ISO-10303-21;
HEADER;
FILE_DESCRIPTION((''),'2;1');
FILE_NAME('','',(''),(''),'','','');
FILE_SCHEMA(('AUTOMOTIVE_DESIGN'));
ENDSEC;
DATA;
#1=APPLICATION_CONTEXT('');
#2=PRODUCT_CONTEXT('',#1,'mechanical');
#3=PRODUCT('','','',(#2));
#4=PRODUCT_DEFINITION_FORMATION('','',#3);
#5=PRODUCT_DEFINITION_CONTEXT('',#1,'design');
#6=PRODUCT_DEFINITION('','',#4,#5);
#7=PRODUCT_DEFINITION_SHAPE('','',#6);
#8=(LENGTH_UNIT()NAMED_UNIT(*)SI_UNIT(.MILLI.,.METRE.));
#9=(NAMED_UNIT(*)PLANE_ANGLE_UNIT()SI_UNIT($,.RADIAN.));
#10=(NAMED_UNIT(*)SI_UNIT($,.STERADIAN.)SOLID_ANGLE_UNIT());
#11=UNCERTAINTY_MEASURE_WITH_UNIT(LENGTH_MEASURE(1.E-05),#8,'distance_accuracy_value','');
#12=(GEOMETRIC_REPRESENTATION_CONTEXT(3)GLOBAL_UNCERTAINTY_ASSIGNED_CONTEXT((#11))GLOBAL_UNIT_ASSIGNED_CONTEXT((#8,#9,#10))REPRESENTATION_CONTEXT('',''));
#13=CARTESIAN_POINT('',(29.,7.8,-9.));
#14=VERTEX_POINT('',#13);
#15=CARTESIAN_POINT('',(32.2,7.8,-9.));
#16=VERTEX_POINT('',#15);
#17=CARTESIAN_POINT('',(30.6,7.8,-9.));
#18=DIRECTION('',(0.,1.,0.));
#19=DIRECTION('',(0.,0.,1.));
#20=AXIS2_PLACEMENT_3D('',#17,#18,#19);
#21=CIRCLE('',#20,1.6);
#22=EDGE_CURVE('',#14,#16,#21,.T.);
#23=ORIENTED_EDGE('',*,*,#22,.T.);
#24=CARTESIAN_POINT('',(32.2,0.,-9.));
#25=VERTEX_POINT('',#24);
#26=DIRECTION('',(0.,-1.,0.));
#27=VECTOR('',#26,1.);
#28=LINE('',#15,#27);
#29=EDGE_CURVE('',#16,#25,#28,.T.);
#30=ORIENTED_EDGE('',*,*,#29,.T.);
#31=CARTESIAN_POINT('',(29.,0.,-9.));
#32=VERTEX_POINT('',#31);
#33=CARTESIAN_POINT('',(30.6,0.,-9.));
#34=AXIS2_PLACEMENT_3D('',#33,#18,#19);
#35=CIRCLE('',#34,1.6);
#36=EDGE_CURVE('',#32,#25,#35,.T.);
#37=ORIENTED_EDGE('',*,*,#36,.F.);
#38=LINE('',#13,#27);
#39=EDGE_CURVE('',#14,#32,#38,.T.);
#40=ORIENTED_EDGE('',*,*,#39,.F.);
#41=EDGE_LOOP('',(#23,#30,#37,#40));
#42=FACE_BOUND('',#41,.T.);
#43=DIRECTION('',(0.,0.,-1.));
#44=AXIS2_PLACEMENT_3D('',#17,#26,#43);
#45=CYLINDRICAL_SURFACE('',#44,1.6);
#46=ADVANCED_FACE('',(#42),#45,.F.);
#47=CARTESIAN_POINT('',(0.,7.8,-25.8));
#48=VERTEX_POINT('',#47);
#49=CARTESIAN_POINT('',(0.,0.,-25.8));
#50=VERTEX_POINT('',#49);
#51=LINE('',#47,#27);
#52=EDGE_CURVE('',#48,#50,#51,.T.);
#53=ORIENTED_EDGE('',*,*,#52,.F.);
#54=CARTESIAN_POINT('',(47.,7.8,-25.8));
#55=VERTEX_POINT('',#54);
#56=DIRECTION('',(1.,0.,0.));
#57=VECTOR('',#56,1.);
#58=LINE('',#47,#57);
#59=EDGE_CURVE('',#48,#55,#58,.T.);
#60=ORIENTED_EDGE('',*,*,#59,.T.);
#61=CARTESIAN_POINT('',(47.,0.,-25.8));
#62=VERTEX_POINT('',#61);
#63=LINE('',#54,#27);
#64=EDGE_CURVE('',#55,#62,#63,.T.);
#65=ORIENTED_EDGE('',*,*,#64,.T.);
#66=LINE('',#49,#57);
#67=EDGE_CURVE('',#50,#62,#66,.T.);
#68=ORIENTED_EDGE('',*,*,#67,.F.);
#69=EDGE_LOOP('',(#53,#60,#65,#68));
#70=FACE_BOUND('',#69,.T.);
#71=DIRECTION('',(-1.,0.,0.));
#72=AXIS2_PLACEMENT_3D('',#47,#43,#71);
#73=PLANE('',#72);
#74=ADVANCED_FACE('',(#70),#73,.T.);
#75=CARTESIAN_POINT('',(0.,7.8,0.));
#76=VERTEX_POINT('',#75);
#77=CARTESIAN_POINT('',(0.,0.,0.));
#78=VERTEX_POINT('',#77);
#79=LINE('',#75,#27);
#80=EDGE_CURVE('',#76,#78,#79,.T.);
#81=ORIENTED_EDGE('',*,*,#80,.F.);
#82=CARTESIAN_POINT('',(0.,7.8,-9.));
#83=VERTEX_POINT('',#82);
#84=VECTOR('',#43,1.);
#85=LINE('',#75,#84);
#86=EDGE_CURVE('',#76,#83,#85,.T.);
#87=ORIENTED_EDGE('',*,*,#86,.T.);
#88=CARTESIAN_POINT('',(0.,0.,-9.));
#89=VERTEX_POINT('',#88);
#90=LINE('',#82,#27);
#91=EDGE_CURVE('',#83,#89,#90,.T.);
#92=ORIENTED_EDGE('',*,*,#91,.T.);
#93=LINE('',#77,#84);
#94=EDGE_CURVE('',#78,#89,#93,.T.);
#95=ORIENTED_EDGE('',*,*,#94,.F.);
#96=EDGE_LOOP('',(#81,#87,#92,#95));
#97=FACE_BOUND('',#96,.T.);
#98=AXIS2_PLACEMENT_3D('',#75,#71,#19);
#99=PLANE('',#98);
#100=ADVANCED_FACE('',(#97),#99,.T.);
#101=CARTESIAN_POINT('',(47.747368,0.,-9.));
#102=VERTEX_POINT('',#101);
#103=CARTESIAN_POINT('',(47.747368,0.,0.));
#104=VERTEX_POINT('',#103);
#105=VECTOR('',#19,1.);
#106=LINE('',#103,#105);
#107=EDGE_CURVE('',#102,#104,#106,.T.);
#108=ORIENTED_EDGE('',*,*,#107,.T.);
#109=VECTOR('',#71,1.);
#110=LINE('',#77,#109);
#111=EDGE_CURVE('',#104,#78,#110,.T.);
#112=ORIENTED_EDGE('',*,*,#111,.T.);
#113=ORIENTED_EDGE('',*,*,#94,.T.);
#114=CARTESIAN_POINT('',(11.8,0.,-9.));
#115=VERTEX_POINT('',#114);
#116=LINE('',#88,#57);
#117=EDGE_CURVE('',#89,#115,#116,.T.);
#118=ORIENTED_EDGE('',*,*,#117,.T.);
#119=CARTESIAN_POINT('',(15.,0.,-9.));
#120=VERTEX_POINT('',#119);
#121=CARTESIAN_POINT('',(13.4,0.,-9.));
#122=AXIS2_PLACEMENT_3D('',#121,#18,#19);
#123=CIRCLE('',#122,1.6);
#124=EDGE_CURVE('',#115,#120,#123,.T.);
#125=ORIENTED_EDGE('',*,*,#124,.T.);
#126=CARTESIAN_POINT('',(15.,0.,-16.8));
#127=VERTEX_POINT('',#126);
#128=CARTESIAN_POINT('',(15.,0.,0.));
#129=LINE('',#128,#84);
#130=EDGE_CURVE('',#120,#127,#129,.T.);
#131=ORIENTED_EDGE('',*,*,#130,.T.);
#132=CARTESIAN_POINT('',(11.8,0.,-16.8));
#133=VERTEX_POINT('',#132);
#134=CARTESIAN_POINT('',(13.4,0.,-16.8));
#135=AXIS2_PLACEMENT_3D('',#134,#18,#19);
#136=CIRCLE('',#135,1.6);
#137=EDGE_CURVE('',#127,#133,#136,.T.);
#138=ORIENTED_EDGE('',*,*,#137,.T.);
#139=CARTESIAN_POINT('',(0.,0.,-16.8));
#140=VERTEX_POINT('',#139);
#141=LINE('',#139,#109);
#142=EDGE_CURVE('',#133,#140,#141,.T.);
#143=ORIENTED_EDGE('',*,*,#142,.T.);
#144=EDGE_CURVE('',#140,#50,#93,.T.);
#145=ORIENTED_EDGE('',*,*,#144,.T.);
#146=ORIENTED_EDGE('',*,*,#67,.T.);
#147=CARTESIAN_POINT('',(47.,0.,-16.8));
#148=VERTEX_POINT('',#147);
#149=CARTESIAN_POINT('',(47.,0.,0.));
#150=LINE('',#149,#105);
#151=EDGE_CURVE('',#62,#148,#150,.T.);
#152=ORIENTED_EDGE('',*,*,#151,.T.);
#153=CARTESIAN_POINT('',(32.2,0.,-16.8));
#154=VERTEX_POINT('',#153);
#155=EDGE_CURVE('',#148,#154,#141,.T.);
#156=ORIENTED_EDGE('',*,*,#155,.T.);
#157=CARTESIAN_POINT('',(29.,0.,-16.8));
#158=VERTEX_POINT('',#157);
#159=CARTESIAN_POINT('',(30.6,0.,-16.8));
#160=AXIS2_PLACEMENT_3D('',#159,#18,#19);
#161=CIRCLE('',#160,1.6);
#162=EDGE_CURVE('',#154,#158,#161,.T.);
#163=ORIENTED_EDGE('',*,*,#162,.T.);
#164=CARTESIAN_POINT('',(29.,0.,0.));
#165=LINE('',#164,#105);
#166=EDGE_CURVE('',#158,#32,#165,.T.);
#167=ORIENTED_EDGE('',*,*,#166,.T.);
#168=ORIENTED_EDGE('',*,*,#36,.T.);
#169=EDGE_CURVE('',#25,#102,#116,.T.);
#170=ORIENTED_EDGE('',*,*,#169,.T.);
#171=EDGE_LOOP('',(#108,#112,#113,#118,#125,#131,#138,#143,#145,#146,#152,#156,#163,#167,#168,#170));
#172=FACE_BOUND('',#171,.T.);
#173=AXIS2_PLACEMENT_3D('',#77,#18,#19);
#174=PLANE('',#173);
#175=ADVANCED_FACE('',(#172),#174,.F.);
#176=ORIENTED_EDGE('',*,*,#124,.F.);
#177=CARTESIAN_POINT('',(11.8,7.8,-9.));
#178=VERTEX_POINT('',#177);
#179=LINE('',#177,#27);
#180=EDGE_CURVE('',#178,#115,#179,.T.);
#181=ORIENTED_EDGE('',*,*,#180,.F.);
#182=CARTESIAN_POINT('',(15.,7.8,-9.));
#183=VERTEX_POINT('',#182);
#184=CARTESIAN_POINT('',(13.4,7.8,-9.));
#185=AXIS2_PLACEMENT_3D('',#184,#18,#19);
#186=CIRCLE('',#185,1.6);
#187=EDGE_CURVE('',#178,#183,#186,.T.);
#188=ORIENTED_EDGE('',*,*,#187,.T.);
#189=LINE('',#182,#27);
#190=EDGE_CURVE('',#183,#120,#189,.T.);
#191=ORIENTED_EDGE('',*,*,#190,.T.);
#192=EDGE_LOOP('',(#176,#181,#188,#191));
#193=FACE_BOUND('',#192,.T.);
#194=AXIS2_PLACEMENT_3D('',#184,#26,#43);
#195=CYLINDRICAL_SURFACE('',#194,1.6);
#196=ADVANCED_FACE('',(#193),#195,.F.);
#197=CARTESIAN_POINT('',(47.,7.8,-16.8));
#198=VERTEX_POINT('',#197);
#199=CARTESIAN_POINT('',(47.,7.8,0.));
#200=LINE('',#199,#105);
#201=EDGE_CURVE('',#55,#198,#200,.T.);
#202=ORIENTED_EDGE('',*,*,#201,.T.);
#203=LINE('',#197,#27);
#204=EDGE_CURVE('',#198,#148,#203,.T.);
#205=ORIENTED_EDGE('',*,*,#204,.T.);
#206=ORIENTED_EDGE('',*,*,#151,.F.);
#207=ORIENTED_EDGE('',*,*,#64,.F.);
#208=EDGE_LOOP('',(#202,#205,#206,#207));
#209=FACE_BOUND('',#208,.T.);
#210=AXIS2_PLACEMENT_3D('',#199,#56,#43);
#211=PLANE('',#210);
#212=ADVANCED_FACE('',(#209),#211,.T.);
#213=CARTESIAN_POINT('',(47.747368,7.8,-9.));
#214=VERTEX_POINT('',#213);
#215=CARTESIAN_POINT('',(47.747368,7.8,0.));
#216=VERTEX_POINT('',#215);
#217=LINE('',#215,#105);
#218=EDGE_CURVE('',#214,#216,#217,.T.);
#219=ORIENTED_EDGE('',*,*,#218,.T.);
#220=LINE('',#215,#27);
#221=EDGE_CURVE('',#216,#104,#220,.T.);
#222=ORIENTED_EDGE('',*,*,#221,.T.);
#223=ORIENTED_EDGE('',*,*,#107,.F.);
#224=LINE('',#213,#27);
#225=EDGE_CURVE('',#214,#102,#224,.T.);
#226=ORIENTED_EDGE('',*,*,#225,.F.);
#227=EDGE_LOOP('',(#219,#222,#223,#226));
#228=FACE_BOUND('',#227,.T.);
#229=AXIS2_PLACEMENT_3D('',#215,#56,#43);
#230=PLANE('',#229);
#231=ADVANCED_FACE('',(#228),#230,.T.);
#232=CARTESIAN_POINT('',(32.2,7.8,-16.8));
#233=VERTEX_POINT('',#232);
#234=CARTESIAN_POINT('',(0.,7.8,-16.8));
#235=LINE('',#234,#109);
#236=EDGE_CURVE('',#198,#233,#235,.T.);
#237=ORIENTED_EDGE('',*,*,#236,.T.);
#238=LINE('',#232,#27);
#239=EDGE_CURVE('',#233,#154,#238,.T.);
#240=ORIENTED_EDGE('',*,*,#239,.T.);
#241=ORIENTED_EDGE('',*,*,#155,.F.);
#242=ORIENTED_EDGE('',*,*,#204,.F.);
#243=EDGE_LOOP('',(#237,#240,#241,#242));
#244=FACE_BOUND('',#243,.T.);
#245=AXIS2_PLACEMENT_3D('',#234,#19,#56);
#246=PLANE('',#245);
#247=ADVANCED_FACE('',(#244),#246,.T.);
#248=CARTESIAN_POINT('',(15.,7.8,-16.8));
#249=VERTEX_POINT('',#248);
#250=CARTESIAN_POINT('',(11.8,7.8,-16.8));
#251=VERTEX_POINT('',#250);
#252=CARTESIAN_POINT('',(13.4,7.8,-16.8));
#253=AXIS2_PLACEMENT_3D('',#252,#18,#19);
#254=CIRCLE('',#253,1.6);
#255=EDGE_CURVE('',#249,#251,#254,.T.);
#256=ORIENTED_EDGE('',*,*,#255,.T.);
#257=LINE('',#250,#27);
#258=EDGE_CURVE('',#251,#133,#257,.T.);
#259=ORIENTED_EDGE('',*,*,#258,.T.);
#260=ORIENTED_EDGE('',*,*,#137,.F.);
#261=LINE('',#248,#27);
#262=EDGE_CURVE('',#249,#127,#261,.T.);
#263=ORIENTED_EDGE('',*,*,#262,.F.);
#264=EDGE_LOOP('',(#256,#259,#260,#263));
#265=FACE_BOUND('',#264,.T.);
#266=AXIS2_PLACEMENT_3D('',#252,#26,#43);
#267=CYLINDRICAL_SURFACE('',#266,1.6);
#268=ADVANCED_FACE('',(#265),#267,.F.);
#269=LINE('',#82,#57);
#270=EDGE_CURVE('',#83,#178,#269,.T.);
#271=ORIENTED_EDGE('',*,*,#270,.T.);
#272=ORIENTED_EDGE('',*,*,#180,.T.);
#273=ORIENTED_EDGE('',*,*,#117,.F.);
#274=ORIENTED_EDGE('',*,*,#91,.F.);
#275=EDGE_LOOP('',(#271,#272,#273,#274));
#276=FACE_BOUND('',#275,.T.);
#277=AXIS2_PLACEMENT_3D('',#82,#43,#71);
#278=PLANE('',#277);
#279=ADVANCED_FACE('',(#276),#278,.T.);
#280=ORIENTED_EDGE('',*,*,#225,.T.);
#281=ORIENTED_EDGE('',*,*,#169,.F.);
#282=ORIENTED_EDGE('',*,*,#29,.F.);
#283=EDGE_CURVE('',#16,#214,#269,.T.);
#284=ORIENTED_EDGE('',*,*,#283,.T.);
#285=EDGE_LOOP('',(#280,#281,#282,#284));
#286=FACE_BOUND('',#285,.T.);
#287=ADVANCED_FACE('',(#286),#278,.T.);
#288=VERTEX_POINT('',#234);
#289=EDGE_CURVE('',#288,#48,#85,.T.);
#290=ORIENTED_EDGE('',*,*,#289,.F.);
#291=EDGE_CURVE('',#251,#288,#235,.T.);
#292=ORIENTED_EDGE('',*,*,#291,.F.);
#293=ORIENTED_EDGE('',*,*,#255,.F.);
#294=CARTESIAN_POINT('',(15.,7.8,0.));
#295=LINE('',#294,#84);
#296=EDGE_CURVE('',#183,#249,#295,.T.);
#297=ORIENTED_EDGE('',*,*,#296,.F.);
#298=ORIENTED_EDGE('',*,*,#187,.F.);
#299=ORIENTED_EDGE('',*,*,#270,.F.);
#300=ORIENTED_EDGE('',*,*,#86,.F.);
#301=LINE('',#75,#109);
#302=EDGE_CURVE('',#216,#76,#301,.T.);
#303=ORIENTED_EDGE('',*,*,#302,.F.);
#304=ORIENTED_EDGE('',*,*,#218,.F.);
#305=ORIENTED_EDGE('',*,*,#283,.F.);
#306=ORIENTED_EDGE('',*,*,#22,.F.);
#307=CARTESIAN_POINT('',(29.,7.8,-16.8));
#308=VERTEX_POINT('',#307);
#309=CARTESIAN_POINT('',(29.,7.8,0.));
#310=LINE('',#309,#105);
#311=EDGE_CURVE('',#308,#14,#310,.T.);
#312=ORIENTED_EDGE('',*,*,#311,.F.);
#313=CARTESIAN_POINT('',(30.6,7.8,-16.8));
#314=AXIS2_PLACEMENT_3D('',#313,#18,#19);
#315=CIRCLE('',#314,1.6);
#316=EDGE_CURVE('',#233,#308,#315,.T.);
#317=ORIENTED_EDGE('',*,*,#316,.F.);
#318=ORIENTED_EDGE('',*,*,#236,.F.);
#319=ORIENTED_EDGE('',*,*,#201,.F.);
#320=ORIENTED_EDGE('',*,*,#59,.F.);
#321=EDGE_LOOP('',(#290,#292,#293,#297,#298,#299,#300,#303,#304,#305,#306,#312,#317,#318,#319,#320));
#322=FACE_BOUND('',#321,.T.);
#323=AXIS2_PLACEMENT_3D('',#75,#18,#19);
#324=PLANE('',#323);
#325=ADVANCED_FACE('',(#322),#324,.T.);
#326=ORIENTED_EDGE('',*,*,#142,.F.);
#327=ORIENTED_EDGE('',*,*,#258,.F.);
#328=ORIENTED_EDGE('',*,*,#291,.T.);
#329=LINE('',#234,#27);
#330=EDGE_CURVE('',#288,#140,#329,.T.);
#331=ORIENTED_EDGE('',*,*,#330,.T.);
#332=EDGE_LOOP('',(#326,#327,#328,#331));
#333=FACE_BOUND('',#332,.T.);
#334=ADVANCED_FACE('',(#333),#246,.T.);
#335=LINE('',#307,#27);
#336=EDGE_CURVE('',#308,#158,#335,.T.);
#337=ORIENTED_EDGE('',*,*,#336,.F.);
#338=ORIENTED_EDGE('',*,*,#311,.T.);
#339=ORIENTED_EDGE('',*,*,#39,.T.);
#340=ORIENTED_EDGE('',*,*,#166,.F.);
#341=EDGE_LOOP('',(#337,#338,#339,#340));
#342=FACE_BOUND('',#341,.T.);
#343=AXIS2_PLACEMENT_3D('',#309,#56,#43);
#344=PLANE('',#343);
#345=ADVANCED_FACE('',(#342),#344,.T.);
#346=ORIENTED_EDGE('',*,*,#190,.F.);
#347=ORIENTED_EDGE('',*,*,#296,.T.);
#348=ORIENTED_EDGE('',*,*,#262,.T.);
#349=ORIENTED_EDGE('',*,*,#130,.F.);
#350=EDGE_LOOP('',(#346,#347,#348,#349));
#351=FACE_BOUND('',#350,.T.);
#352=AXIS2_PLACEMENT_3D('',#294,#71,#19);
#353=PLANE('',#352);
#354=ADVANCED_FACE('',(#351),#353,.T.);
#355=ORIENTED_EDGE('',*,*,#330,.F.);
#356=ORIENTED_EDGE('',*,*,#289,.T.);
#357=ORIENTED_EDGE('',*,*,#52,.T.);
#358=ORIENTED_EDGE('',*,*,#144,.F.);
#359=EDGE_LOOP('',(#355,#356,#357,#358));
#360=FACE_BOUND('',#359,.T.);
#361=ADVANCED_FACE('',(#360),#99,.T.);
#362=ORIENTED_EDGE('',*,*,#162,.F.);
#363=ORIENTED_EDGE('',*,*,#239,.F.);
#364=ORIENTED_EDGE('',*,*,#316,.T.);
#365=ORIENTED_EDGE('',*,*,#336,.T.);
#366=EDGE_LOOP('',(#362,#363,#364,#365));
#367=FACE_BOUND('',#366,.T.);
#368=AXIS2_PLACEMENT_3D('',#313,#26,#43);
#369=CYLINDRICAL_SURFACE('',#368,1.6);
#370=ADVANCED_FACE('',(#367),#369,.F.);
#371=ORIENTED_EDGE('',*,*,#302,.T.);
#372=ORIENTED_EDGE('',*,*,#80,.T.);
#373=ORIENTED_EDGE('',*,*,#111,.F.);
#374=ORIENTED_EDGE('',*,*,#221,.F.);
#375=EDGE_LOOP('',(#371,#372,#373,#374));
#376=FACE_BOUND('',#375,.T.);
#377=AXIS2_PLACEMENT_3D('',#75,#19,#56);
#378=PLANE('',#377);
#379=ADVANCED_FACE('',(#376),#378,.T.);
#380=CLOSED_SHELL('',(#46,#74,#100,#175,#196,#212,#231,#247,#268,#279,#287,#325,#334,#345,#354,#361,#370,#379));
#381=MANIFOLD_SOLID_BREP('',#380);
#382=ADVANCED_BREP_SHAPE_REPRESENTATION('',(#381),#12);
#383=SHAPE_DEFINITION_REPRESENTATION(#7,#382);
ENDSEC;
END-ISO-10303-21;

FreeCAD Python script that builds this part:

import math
import FreeCAD as App
import Part
import Sketcher
Q = App.Units.Quantity

doc = App.newDocument("Part")
body = doc.addObject("PartDesign::Body", "Body")

sketch1 = body.newObject("Sketcher::SketchObject", "Sketch")
sketch1.AttachmentSupport = (doc.getObject("XZ_Plane"), [""])
sketch1.MapMode = "FlatFace"
sketch1.addGeometry([
    Part.LineSegment(App.Vector(0, -9, 0), App.Vector(0, 0, 0)),
    Part.LineSegment(App.Vector(0, 0, 0), App.Vector(47.7, 0, 0)),
    Part.LineSegment(App.Vector(47.7, 0, 0), App.Vector(47.7, -9, 0)),
    Part.LineSegment(App.Vector(47.7, -9, 0), App.Vector(32.2, -9, 0)),
    Part.ArcOfCircle(Part.Circle(App.Vector(30.6, -9, 0), App.Vector(0, 0, 1), 1.6), math.radians(0), math.radians(180)),
    Part.LineSegment(App.Vector(29, -9, 0), App.Vector(29, -16.8, 0)),
    Part.ArcOfCircle(Part.Circle(App.Vector(30.6, -16.8, 0), App.Vector(0, 0, 1), 1.6), math.radians(180), math.radians(360)),
    Part.LineSegment(App.Vector(32.2, -16.8, 0), App.Vector(47, -16.8, 0)),
    Part.LineSegment(App.Vector(47, -16.8, 0), App.Vector(47, -25.8, 0)),
    Part.LineSegment(App.Vector(47, -25.8, 0), App.Vector(0, -25.8, 0)),
    Part.LineSegment(App.Vector(0, -25.8, 0), App.Vector(0, -16.8, 0)),
    Part.LineSegment(App.Vector(0, -16.8, 0), App.Vector(11.8, -16.8, 0)),
    Part.ArcOfCircle(Part.Circle(App.Vector(13.4, -16.8, 0), App.Vector(0, 0, 1), 1.6), math.radians(180), math.radians(360)),
    Part.LineSegment(App.Vector(15, -16.8, 0), App.Vector(15, -9, 0)),
    Part.ArcOfCircle(Part.Circle(App.Vector(13.4, -9, 0), App.Vector(0, 0, 1), 1.6), math.radians(0), math.radians(180)),
    Part.LineSegment(App.Vector(11.8, -9, 0), App.Vector(0, -9, 0)),
], False)
sketch1.addConstraint([
    Sketcher.Constraint("Coincident", 0, 2, 1, 1),
    Sketcher.Constraint("Coincident", 1, 2, 2, 1),
    Sketcher.Constraint("Coincident", 2, 2, 3, 1),
    Sketcher.Constraint("Coincident", 3, 2, 4, 1),
    Sketcher.Constraint("Tangent", 4, 2, 5, 1),
    Sketcher.Constraint("Tangent", 5, 2, 6, 1),
    Sketcher.Constraint("Coincident", 6, 2, 7, 1),
    Sketcher.Constraint("Coincident", 7, 2, 8, 1),
    Sketcher.Constraint("Coincident", 8, 2, 9, 1),
    Sketcher.Constraint("Coincident", 9, 2, 10, 1),
    Sketcher.Constraint("Coincident", 10, 2, 11, 1),
    Sketcher.Constraint("Coincident", 11, 2, 12, 1),
    Sketcher.Constraint("Tangent", 12, 2, 13, 1),
    Sketcher.Constraint("Tangent", 13, 2, 14, 1),
    Sketcher.Constraint("Coincident", 14, 2, 15, 1),
    Sketcher.Constraint("Coincident", 15, 2, 0, 1),
    Sketcher.Constraint("Vertical", 0),
    Sketcher.Constraint("Horizontal", 1),
    Sketcher.Constraint("Vertical", 2),
    Sketcher.Constraint("Horizontal", 3),
    Sketcher.Constraint("Vertical", 5),
    Sketcher.Constraint("Horizontal", 7),
    Sketcher.Constraint("Vertical", 8),
    Sketcher.Constraint("Horizontal", 9),
    Sketcher.Constraint("Vertical", 10),
    Sketcher.Constraint("Horizontal", 11),
    Sketcher.Constraint("Vertical", 13),
    Sketcher.Constraint("Horizontal", 15),
    Sketcher.Constraint("Coincident", 0, 2, -1, 1),
    Sketcher.Constraint("Equal", 4, 6),
    Sketcher.Constraint("Equal", 6, 12),
    Sketcher.Constraint("Equal", 12, 14),
    Sketcher.Constraint("PointOnObject", 9, 2, -2),
    Sketcher.Constraint("Horizontal", 6, 3, 12, 3),
    Sketcher.Constraint("Horizontal", 4, 3, 14, 3),
    Sketcher.Constraint("Horizontal", 14, 3, 2, 2),
    Sketcher.Constraint("Horizontal", 5, 2, 6, 2),
    Sketcher.Constraint("Horizontal", 7, 2, 10, 2),
    Sketcher.Constraint("Horizontal", 13, 2, 14, 2),
    Sketcher.Constraint("Equal", 2, 8),
    Sketcher.Constraint("Radius", 4, Q("1.6 mm")),
    Sketcher.Constraint("DistanceX", 9, 2, 9, 1, Q("47 mm")),
    Sketcher.Constraint("DistanceY", 0, 1, 0, 2, Q("9 mm")),
    Sketcher.Constraint("DistanceX", 7, 1, 7, 2, Q("14.8 mm")),
    Sketcher.Constraint("DistanceX", 11, 1, 11, 2, Q("11.8 mm")),
    Sketcher.Constraint("DistanceY", 5, 2, 5, 1, Q("7.8 mm")),
    Sketcher.Constraint("DistanceX", 1, 1, 1, 2, Q("47.747368 mm")),
])
pad1 = body.newObject("PartDesign::Pad", "Pad")
pad1.Profile = sketch1
pad1.Length = 7.8
pad1.Reversed = True

doc.recompute()
